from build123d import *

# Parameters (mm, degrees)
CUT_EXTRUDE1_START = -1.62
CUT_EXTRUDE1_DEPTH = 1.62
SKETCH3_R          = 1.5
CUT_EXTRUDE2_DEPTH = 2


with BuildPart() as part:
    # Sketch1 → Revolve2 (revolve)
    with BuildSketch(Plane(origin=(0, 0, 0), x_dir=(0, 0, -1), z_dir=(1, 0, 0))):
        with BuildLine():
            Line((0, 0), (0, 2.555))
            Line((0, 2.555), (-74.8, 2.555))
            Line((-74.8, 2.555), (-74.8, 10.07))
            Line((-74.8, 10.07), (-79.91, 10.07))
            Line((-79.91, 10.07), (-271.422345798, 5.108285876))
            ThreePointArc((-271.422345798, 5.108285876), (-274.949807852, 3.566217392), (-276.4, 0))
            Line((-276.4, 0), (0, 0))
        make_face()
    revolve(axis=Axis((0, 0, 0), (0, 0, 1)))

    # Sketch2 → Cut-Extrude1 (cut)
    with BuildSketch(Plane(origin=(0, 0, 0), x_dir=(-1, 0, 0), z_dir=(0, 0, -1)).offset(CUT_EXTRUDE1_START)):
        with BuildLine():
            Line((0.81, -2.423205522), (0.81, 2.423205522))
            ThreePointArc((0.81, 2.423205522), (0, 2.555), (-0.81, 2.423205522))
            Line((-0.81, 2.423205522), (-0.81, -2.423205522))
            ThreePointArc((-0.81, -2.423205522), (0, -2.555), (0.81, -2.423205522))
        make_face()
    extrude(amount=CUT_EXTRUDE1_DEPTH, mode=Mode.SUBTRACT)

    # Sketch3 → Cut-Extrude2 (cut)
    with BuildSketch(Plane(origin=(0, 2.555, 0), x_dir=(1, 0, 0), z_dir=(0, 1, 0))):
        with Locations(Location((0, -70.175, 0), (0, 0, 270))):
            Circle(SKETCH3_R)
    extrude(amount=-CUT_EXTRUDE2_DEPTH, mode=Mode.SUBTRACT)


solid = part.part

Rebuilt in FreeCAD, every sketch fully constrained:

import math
import FreeCAD as App
import Part
import Sketcher

V = App.Vector

doc = App.newDocument("Part")
body = doc.addObject("PartDesign::Body", "Body")

sketch1 = doc.addObject("Sketcher::SketchObject", "Sketch")
body.addObject(sketch1)
sketch1.AttachmentSupport = (doc.YZ_Plane, [""])
sketch1.MapMode = "FlatFace"
sketch1.addGeometry([
    Part.LineSegment(V(0, 0, 0), V(2.6, 0, 0)),
    Part.LineSegment(V(2.6, 0, 0), V(2.6, 74.8, 0)),
    Part.LineSegment(V(2.6, 74.8, 0), V(10.1, 74.8, 0)),
    Part.LineSegment(V(10.1, 74.8, 0), V(10.1, 79.9, 0)),
    Part.LineSegment(V(10.1, 79.9, 0), V(5.1, 271.4, 0)),
    Part.ArcOfCircle(Part.Circle(V(0, 271.3, 0), V(0, 0, 1), 5.1), math.radians(1), math.radians(90)),
    Part.LineSegment(V(0, 276.4, 0), V(0, 0, 0)),
], False)
sketch1.addConstraint([
    Sketcher.Constraint("Coincident", 0, 2, 1, 1),
    Sketcher.Constraint("Coincident", 1, 2, 2, 1),
    Sketcher.Constraint("Coincident", 2, 2, 3, 1),
    Sketcher.Constraint("Coincident", 3, 2, 4, 1),
    Sketcher.Constraint("Tangent", 4, 2, 5, 1),
    Sketcher.Constraint("Coincident", 5, 2, 6, 1),
    Sketcher.Constraint("Coincident", 6, 2, 0, 1),
    Sketcher.Constraint("Horizontal", 0),
    Sketcher.Constraint("Vertical", 1),
    Sketcher.Constraint("Horizontal", 2),
    Sketcher.Constraint("Vertical", 3),
    Sketcher.Constraint("Vertical", 6),
    Sketcher.Constraint("Coincident", 6, 2, -1, 1),
    Sketcher.Constraint("PointOnObject", 5, 3, -2),
    Sketcher.Constraint("Radius", 5, 5.11),
    Sketcher.Constraint("DistanceY", 1, 1, 1, 2, 74.8),
    Sketcher.Constraint("DistanceY", 6, 2, 6, 1, 276.4),
    Sketcher.Constraint("DistanceY", 3, 1, 3, 2, 5.11),
    Sketcher.Constraint("DistanceX", 0, 1, 0, 2, 2.555),
    Sketcher.Constraint("DistanceX", 2, 1, 2, 2, 7.515),
])
revolution = doc.addObject("PartDesign::Revolution", "Revolution")
body.addObject(revolution)
revolution.Profile = sketch1
revolution.ReferenceAxis = (sketch1, ["V_Axis"])
revolution.Angle = 360

sketch2 = doc.addObject("Sketcher::SketchObject", "Sketch001")
body.addObject(sketch2)
sketch2.AttachmentSupport = (doc.XY_Plane, [""])
sketch2.MapMode = "FlatFace"
sketch2.AttachmentOffset = App.Placement(V(0, 0, 1.62), App.Rotation())
sketch2.addGeometry([
    Part.LineSegment(V(-0.8, -2.4, 0), V(-0.8, 2.4, 0)),
    Part.ArcOfCircle(Part.Circle(V(0, 0, 0), V(0, 0, 1), 2.6), math.radians(72), math.radians(108)),
    Part.LineSegment(V(0.8, 2.4, 0), V(0.8, -2.4, 0)),
    Part.ArcOfCircle(Part.Circle(V(0, 0, 0), V(0, 0, 1), 2.6), math.radians(-108), math.radians(-72)),
], False)
sketch2.addConstraint([
    Sketcher.Constraint("Coincident", 0, 2, 1, 2),
    Sketcher.Constraint("Coincident", 1, 1, 2, 1),
    Sketcher.Constraint("Coincident", 2, 2, 3, 2),
    Sketcher.Constraint("Coincident", 3, 1, 0, 1),
    Sketcher.Constraint("Vertical", 0),
    Sketcher.Constraint("Vertical", 2),
    Sketcher.Constraint("Coincident", 1, 3, -1, 1),
    Sketcher.Constraint("Coincident", 3, 3, -1, 1),
    Sketcher.Constraint("Equal", 1, 3),
    Sketcher.Constraint("Horizontal", 0, 2, 1, 1),
    Sketcher.Constraint("Radius", 1, 2.555),
    Sketcher.Constraint("DistanceX", 0, 2, -1, 1, 0.81),
])
pocket1 = doc.addObject("PartDesign::Pocket", "Pocket")
body.addObject(pocket1)
pocket1.Profile = sketch2
pocket1.Length = 1.62

sketch3 = doc.addObject("Sketcher::SketchObject", "Sketch002")
body.addObject(sketch3)
sketch3.AttachmentSupport = (doc.XZ_Plane, [""])
sketch3.MapMode = "FlatFace"
sketch3.AttachmentOffset = App.Placement(V(0, 0, -2.555), App.Rotation())
sketch3.addGeometry(Part.Circle(V(0, 70.2, 0), V(0, 0, 1), 1.5), False)
sketch3.addConstraint([
    Sketcher.Constraint("PointOnObject", 0, 3, -2),
    Sketcher.Constraint("Diameter", 0, 3.0),
    Sketcher.Constraint("DistanceY", -1, 1, 0, 3, 70.175),
])
pocket2 = doc.addObject("PartDesign::Pocket", "Pocket001")
body.addObject(pocket2)
pocket2.Profile = sketch3
pocket2.Length = 2
pocket2.Reversed = True

doc.recompute()
